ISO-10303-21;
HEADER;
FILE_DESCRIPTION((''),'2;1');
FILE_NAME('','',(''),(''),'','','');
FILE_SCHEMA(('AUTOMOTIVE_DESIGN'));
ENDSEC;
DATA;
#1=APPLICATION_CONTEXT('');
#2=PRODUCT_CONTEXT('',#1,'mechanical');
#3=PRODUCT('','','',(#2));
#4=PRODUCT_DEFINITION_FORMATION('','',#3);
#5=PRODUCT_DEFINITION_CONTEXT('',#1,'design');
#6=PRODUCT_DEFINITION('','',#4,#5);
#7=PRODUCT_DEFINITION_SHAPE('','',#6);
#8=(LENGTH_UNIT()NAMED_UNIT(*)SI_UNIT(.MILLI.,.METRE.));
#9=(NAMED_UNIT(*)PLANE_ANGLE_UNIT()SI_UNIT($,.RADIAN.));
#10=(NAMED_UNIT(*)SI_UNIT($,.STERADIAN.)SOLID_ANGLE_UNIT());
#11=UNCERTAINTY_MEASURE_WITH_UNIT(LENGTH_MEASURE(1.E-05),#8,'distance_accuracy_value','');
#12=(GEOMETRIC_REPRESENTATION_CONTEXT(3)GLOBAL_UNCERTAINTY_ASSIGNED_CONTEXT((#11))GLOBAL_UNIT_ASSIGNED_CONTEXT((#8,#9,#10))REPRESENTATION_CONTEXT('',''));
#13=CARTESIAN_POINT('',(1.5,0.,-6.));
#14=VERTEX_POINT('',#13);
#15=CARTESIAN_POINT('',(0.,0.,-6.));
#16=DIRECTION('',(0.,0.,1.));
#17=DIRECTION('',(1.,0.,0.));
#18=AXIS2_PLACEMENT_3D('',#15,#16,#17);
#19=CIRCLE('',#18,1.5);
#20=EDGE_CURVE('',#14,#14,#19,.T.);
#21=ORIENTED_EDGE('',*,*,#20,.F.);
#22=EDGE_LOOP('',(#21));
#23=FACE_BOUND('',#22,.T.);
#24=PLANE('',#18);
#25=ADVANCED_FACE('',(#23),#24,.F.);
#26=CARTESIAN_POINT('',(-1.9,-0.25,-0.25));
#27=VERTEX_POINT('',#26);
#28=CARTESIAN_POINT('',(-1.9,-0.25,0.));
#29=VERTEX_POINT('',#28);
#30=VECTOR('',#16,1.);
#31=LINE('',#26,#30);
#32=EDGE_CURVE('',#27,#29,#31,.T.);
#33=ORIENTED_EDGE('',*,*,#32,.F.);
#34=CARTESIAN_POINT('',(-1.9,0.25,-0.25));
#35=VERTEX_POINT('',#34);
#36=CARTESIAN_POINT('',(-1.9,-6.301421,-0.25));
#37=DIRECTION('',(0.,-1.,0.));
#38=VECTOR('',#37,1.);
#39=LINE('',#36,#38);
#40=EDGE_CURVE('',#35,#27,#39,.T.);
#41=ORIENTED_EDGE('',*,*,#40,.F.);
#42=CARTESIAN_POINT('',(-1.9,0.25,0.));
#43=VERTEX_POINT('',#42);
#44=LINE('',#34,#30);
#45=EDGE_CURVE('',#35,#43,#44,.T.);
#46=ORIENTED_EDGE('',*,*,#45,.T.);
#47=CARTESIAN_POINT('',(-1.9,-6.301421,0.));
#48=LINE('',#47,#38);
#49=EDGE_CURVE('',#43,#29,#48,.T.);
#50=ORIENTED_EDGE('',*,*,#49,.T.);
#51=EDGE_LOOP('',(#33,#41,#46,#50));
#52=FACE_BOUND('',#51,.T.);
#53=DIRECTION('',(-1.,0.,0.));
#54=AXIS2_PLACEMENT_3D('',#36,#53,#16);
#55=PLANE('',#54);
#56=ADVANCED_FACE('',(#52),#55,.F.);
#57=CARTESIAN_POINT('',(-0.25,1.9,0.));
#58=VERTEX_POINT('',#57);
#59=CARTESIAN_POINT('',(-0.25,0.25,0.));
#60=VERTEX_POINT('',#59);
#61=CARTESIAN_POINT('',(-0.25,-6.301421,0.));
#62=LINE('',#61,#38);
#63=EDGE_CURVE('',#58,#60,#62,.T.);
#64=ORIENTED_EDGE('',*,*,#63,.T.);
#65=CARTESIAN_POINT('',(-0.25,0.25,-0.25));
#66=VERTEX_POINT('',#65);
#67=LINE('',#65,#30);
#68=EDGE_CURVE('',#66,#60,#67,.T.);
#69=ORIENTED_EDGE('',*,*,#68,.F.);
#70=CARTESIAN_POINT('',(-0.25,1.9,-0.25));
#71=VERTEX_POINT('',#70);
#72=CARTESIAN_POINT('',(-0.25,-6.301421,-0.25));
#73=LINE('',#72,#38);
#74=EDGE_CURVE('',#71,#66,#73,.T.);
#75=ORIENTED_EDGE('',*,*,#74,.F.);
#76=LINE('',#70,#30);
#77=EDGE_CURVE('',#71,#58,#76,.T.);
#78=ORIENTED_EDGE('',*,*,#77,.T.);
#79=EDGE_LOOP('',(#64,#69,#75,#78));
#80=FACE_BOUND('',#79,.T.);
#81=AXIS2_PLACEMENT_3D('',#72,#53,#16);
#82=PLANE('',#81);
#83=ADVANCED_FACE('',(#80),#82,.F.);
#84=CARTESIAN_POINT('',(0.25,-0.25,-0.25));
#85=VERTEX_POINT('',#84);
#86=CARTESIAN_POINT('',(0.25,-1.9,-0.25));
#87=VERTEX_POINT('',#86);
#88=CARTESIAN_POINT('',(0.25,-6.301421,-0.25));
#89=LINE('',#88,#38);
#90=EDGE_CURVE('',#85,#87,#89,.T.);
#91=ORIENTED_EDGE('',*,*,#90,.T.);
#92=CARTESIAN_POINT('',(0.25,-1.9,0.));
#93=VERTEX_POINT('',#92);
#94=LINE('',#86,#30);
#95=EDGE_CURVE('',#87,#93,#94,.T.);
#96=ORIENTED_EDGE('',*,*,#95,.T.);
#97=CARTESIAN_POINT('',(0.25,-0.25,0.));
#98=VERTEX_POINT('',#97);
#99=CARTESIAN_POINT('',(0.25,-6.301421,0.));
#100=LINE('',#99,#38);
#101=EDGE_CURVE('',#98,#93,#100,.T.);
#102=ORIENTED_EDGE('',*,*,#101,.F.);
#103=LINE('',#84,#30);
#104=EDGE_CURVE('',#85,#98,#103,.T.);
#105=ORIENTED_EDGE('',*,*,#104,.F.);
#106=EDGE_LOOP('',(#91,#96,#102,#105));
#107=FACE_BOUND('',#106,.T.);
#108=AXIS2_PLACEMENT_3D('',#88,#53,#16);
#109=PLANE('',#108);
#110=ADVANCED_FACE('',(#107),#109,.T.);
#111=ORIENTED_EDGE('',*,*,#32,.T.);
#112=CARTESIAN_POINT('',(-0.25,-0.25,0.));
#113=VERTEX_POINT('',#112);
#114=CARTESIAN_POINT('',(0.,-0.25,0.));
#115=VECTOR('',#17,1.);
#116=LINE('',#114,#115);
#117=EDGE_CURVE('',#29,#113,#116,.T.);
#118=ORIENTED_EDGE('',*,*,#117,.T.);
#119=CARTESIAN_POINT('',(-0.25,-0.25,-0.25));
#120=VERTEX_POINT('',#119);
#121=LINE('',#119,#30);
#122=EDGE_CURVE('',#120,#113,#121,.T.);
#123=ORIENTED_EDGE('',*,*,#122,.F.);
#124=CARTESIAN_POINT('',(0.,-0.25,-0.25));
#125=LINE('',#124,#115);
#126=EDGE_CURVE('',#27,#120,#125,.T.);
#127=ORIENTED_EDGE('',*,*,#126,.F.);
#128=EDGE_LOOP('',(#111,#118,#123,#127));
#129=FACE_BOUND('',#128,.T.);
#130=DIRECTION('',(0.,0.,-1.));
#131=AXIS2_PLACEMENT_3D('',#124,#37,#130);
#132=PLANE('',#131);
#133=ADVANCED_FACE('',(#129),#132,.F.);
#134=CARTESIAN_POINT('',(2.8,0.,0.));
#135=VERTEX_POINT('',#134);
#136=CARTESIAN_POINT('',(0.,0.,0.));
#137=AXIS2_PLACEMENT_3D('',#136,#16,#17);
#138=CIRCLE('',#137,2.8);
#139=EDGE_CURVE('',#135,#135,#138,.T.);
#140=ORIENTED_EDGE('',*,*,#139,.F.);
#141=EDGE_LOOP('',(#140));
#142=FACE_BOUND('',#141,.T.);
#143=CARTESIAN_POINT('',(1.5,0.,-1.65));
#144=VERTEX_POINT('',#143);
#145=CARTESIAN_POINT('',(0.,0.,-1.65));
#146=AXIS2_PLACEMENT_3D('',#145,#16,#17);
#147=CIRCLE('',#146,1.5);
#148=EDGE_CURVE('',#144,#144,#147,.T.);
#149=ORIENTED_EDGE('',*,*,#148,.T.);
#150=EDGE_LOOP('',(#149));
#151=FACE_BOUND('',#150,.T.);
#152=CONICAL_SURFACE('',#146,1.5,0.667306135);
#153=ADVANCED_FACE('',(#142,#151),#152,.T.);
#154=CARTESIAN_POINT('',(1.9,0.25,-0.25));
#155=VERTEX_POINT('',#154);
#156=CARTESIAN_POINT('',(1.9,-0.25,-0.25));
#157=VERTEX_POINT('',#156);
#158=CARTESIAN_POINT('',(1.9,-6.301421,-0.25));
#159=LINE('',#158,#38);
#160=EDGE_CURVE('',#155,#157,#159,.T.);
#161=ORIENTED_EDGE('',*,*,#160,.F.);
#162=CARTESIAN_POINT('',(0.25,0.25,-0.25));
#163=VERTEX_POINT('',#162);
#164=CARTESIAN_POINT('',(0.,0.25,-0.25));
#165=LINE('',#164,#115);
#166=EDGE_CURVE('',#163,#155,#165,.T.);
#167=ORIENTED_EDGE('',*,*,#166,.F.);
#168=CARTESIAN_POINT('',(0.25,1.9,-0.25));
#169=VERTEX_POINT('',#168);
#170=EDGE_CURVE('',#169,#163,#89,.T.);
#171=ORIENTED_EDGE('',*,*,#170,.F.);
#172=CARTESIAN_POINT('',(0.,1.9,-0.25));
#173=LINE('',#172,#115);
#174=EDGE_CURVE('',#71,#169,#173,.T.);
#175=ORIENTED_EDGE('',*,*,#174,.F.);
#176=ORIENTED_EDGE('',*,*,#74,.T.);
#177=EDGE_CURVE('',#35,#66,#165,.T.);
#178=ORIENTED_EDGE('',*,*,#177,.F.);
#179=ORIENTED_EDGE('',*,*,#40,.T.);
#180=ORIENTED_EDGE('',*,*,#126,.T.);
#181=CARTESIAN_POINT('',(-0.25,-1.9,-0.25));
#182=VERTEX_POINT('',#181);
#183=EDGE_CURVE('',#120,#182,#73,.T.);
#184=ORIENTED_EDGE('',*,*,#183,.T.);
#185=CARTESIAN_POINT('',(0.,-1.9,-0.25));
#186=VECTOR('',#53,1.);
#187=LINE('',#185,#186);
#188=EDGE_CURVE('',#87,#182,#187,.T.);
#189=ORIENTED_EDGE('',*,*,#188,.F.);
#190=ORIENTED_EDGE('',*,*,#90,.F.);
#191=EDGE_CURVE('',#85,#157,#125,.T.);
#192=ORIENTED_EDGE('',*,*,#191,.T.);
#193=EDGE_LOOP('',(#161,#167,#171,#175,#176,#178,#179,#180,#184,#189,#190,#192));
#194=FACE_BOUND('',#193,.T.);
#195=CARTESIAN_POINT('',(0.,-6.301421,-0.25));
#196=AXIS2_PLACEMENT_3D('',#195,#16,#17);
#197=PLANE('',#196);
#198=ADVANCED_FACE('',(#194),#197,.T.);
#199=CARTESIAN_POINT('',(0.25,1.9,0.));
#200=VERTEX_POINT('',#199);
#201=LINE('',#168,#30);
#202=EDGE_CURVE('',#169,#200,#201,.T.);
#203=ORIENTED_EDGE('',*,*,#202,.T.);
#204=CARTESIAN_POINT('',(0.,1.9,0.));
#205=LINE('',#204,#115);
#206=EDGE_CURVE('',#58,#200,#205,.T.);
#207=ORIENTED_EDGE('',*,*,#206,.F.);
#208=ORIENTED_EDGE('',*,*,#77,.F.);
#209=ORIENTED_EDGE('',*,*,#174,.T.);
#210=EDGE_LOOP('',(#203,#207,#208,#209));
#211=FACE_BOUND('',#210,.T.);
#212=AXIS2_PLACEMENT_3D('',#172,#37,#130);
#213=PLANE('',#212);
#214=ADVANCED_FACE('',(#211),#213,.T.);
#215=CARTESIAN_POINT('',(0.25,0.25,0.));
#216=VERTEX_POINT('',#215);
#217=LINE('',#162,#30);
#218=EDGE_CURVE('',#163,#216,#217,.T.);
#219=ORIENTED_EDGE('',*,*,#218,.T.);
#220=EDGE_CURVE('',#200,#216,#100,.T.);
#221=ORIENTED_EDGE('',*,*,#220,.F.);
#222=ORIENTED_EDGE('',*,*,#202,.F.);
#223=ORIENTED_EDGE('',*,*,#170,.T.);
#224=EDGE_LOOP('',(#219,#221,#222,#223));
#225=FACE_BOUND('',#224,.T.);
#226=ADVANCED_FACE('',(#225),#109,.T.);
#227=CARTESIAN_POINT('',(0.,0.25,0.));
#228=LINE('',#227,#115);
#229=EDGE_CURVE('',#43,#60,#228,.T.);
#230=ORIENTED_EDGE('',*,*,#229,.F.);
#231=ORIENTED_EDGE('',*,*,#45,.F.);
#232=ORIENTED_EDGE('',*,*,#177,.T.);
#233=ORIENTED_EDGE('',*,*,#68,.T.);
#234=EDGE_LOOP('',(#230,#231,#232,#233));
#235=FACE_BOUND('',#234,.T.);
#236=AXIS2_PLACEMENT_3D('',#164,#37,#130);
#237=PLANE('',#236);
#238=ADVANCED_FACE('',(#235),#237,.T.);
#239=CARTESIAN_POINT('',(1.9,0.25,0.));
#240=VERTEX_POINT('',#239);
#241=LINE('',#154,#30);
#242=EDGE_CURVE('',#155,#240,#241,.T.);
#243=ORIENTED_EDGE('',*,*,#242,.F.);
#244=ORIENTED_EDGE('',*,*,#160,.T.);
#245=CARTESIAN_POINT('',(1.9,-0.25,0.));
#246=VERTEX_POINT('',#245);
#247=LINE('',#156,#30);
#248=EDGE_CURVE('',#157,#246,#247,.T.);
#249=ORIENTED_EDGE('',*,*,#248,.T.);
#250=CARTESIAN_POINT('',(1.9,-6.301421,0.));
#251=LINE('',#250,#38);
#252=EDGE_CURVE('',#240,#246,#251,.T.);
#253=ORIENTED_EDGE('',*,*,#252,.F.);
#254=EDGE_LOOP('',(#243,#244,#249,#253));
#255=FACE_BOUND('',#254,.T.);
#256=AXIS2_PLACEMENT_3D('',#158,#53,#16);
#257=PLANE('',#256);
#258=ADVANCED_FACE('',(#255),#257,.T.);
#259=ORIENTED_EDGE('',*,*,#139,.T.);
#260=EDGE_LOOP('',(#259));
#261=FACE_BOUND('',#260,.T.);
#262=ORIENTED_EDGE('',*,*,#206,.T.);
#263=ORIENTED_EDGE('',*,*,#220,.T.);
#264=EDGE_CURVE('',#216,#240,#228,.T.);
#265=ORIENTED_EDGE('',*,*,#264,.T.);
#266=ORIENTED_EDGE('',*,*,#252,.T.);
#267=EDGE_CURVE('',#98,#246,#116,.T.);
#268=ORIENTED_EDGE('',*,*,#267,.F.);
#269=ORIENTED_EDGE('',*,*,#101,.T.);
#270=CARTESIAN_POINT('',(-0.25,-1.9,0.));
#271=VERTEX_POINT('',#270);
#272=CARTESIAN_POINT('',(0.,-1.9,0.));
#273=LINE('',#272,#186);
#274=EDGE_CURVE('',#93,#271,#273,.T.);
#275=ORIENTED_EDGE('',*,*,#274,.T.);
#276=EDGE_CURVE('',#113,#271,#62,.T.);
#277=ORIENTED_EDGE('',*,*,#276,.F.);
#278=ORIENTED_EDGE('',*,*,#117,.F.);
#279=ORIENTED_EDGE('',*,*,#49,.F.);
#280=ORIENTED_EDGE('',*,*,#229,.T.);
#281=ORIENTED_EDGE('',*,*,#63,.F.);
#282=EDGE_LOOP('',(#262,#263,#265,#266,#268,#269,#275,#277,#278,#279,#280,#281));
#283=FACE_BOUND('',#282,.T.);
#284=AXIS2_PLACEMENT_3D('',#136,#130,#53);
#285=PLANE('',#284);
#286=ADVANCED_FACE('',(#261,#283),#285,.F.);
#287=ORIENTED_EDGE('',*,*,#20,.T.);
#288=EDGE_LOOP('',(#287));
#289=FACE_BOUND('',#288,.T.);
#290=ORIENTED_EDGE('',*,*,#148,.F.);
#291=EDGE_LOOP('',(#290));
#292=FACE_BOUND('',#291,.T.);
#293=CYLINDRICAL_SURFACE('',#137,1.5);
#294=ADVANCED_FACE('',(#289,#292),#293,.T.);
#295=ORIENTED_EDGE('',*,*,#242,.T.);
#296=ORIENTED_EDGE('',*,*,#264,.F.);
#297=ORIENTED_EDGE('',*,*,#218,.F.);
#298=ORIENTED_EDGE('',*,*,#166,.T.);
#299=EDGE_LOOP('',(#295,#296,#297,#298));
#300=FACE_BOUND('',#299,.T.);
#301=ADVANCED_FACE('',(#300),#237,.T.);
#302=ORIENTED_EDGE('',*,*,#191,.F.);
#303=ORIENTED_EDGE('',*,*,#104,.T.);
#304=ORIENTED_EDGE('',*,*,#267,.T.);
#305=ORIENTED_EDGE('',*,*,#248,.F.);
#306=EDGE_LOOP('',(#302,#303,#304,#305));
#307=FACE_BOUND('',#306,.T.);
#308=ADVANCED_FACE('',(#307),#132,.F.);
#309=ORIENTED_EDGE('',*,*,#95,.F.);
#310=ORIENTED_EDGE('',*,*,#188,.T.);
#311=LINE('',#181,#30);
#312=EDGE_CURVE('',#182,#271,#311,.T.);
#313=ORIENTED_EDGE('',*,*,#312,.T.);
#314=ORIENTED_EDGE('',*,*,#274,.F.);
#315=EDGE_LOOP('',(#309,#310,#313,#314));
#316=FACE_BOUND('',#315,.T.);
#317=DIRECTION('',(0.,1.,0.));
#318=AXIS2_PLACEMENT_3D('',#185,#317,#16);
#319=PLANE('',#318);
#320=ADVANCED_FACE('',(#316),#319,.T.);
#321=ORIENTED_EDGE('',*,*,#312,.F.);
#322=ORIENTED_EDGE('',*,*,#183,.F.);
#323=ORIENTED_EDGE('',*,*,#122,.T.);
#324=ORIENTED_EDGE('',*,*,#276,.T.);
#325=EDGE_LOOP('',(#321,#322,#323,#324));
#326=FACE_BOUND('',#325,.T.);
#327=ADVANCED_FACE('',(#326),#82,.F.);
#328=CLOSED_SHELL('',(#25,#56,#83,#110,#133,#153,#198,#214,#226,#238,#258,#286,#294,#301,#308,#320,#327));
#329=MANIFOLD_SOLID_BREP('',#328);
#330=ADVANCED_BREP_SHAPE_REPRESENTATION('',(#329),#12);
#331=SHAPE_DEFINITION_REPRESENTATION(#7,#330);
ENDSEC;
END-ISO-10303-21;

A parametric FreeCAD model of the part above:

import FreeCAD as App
import Part
import Sketcher

doc = App.newDocument("Part")
body = doc.addObject("PartDesign::Body", "Body")

# Sketch on YZ plane
sketch1 = body.newObject("Sketcher::SketchObject", "Sketch")
sketch1.AttachmentSupport = (doc.getObject("YZ_Plane"), [""])
sketch1.MapMode = "FlatFace"
sketch1.addGeometry(Part.LineSegment(App.Vector(2.8, 0, 0), App.Vector(0, 0, 0)), False)
sketch1.addGeometry(Part.LineSegment(App.Vector(0, 0, 0), App.Vector(0, -6, 0)), False)
sketch1.addGeometry(Part.LineSegment(App.Vector(0, -6, 0), App.Vector(1.5, -6, 0)), False)
sketch1.addGeometry(Part.LineSegment(App.Vector(1.5, -6, 0), App.Vector(1.5, -1.6, 0)), False)
sketch1.addGeometry(Part.LineSegment(App.Vector(1.5, -1.6, 0), App.Vector(2.8, 0, 0)), False)
sketch1.addConstraint(Sketcher.Constraint("Coincident", 0, 2, 1, 1))
sketch1.addConstraint(Sketcher.Constraint("Coincident", 1, 2, 2, 1))
sketch1.addConstraint(Sketcher.Constraint("Coincident", 2, 2, 3, 1))
sketch1.addConstraint(Sketcher.Constraint("Coincident", 3, 2, 4, 1))
sketch1.addConstraint(Sketcher.Constraint("Coincident", 4, 2, 0, 1))
sketch1.addConstraint(Sketcher.Constraint("Horizontal", 0))
sketch1.addConstraint(Sketcher.Constraint("Vertical", 1))
sketch1.addConstraint(Sketcher.Constraint("Horizontal", 2))
sketch1.addConstraint(Sketcher.Constraint("Vertical", 3))
sketch1.addConstraint(Sketcher.Constraint("Coincident", 0, 2, -1, 1))
sketch1.addConstraint(Sketcher.Constraint("DistanceY", 1, 2, 1, 1, 6.0))
sketch1.addConstraint(Sketcher.Constraint("DistanceX", 0, 2, 0, 1, 2.8))
sketch1.addConstraint(Sketcher.Constraint("DistanceX", 2, 1, 2, 2, 1.5))
sketch1.addConstraint(Sketcher.Constraint("DistanceY", 3, 1, 3, 2, 4.35))
revolution = body.newObject("PartDesign::Revolution", "Revolution")
revolution.Profile = sketch1
revolution.ReferenceAxis = (sketch1, ["V_Axis"])
revolution.Angle = 360

# Sketch on XY plane
sketch2 = body.newObject("Sketcher::SketchObject", "Sketch001")
sketch2.AttachmentSupport = (doc.getObject("XY_Plane"), [""])
sketch2.MapMode = "FlatFace"
sketch2.addGeometry(Part.LineSegment(App.Vector(-1.9, 0.2, 0), App.Vector(-1.9, -0.2, 0)), False)
sketch2.addGeometry(Part.LineSegment(App.Vector(-1.9, -0.2, 0), App.Vector(-0.2, -0.2, 0)), False)
sketch2.addGeometry(Part.LineSegment(App.Vector(-0.2, -0.2, 0), App.Vector(-0.2, -1.9, 0)), False)
sketch2.addGeometry(Part.LineSegment(App.Vector(-0.2, -1.9, 0), App.Vector(0.2, -1.9, 0)), False)
sketch2.addGeometry(Part.LineSegment(App.Vector(0.2, -1.9, 0), App.Vector(0.2, -0.2, 0)), False)
sketch2.addGeometry(Part.LineSegment(App.Vector(0.2, -0.2, 0), App.Vector(1.9, -0.2, 0)), False)
sketch2.addGeometry(Part.LineSegment(App.Vector(1.9, -0.2, 0), App.Vector(1.9, 0.2, 0)), False)
sketch2.addGeometry(Part.LineSegment(App.Vector(1.9, 0.2, 0), App.Vector(0.2, 0.2, 0)), False)
sketch2.addGeometry(Part.LineSegment(App.Vector(0.2, 0.2, 0), App.Vector(0.2, 1.9, 0)), False)
sketch2.addGeometry(Part.LineSegment(App.Vector(0.2, 1.9, 0), App.Vector(-0.2, 1.9, 0)), False)
sketch2.addGeometry(Part.LineSegment(App.Vector(-0.2, 1.9, 0), App.Vector(-0.2, 0.2, 0)), False)
sketch2.addGeometry(Part.LineSegment(App.Vector(-0.2, 0.2, 0), App.Vector(-1.9, 0.2, 0)), False)
sketch2.addConstraint(Sketcher.Constraint("Coincident", 0, 2, 1, 1))
sketch2.addConstraint(Sketcher.Constraint("Coincident", 1, 2, 2, 1))
sketch2.addConstraint(Sketcher.Constraint("Coincident", 2, 2, 3, 1))
sketch2.addConstraint(Sketcher.Constraint("Coincident", 3, 2, 4, 1))
sketch2.addConstraint(Sketcher.Constraint("Coincident", 4, 2, 5, 1))
sketch2.addConstraint(Sketcher.Constraint("Coincident", 5, 2, 6, 1))
sketch2.addConstraint(Sketcher.Constraint("Coincident", 6, 2, 7, 1))
sketch2.addConstraint(Sketcher.Constraint("Coincident", 7, 2, 8, 1))
sketch2.addConstraint(Sketcher.Constraint("Coincident", 8, 2, 9, 1))
sketch2.addConstraint(Sketcher.Constraint("Coincident", 9, 2, 10, 1))
sketch2.addConstraint(Sketcher.Constraint("Coincident", 10, 2, 11, 1))
sketch2.addConstraint(Sketcher.Constraint("Coincident", 11, 2, 0, 1))
sketch2.addConstraint(Sketcher.Constraint("Vertical", 0))
sketch2.addConstraint(Sketcher.Constraint("Horizontal", 1))
sketch2.addConstraint(Sketcher.Constraint("Vertical", 2))
sketch2.addConstraint(Sketcher.Constraint("Horizontal", 3))
sketch2.addConstraint(Sketcher.Constraint("Vertical", 4))
sketch2.addConstraint(Sketcher.Constraint("Horizontal", 5))
sketch2.addConstraint(Sketcher.Constraint("Vertical", 6))
sketch2.addConstraint(Sketcher.Constraint("Horizontal", 7))
sketch2.addConstraint(Sketcher.Constraint("Vertical", 8))
sketch2.addConstraint(Sketcher.Constraint("Horizontal", 9))
sketch2.addConstraint(Sketcher.Constraint("Vertical", 10))
sketch2.addConstraint(Sketcher.Constraint("Horizontal", 11))
sketch2.addConstraint(Sketcher.Constraint("Symmetric", 0, 2, 6, 2, -1, 1))
sketch2.addConstraint(Sketcher.Constraint("Symmetric", 2, 2, 8, 2, -1, 1))
sketch2.addConstraint(Sketcher.Constraint("Symmetric", 4, 2, 10, 2, -1, 1))
sketch2.addConstraint(Sketcher.Constraint("Symmetric", 1, 2, 4, 2, -2))
sketch2.addConstraint(Sketcher.Constraint("Equal", 9, 0))
sketch2.addConstraint(Sketcher.Constraint("Equal", 11, 2))
sketch2.addConstraint(Sketcher.Constraint("DistanceX", 3, 1, 3, 2, 0.5))
sketch2.addConstraint(Sketcher.Constraint("DistanceX", 1, 1, 1, 2, 1.65))
pocket1 = body.newObject("PartDesign::Pocket", "Pocket")
pocket1.Profile = sketch2
pocket1.Length = 0.25

doc.recompute()
